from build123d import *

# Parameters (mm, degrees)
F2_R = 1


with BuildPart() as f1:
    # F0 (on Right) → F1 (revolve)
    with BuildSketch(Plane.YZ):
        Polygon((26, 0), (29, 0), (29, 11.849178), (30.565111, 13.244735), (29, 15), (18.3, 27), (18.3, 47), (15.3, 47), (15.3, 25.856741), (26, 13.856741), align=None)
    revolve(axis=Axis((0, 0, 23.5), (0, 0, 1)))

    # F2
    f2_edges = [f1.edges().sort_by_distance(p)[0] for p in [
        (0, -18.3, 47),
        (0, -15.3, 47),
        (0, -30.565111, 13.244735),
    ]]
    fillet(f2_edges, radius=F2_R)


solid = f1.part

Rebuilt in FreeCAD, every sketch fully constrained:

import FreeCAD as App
import Part
import Sketcher
from FreeCAD import Vector
Q = App.Units.Quantity


def edges_at(feature, points):
    """Names of the edges that pass closest to the given points."""
    edges = feature.Shape.Edges
    near = lambda p: min(range(len(edges)), key=lambda i: edges[i].distToShape(Part.Vertex(*p))[0])
    return sorted({f"Edge{near(p) + 1}" for p in points})

doc = App.newDocument("Part")
body = doc.addObject("PartDesign::Body", "Body")

# Sketch on YZ plane
sketch1 = body.newObject("Sketcher::SketchObject", "Sketch")
sketch1.AttachmentSupport = (doc.getObject("YZ_Plane"), [""])
sketch1.MapMode = "FlatFace"
sketch1.addGeometry([
    Part.LineSegment(Vector(26, 0, 0), Vector(29, 0, 0)),  # 0
    Part.LineSegment(Vector(29, 0, 0), Vector(29, 11.8, 0)),  # 1
    Part.LineSegment(Vector(29, 11.8, 0), Vector(30.6, 13.2, 0)),  # 2
    Part.LineSegment(Vector(30.6, 13.2, 0), Vector(29, 15, 0)),  # 3
    Part.LineSegment(Vector(29, 15, 0), Vector(18.3, 27, 0)),  # 4
    Part.LineSegment(Vector(18.3, 27, 0), Vector(18.3, 47, 0)),  # 5
    Part.LineSegment(Vector(18.3, 47, 0), Vector(15.3, 47, 0)),  # 6
    Part.LineSegment(Vector(15.3, 47, 0), Vector(15.3, 25.9, 0)),  # 7
    Part.LineSegment(Vector(15.3, 25.9, 0), Vector(26, 13.9, 0)),  # 8
    Part.LineSegment(Vector(26, 13.9, 0), Vector(26, 0, 0)),  # 9
], False)
sketch1.addConstraint([
    Sketcher.Constraint("Coincident", 0, 2, 1, 1),
    Sketcher.Constraint("Coincident", 1, 2, 2, 1),
    Sketcher.Constraint("Coincident", 2, 2, 3, 1),
    Sketcher.Constraint("Coincident", 3, 2, 4, 1),
    Sketcher.Constraint("Coincident", 4, 2, 5, 1),
    Sketcher.Constraint("Coincident", 5, 2, 6, 1),
    Sketcher.Constraint("Coincident", 6, 2, 7, 1),
    Sketcher.Constraint("Coincident", 7, 2, 8, 1),
    Sketcher.Constraint("Coincident", 8, 2, 9, 1),
    Sketcher.Constraint("Coincident", 9, 2, 0, 1),
    Sketcher.Constraint("Horizontal", 0),
    Sketcher.Constraint("Vertical", 1),
    Sketcher.Constraint("Vertical", 5),
    Sketcher.Constraint("Horizontal", 6),
    Sketcher.Constraint("Vertical", 7),
    Sketcher.Constraint("Vertical", 9),
    Sketcher.Constraint("PointOnObject", 0, 2, -1),
    Sketcher.Constraint("Perpendicular", 2, 3),
    Sketcher.Constraint("Parallel", 3, 4),
    Sketcher.Constraint("Parallel", 4, 8),
    Sketcher.Constraint("Vertical", 1, 2, 3, 2),
    Sketcher.Constraint("Equal", 0, 6),
    Sketcher.Constraint("DistanceX", 0, 1, 0, 2, Q("3 mm")),
    Sketcher.Constraint("DistanceY", 5, 1, 5, 2, Q("20 mm")),
    Sketcher.Constraint("DistanceX", -1, 1, 0, 2, Q("29 mm")),
    Sketcher.Constraint("DistanceY", -1, 1, 3, 2, Q("15 mm")),
    Sketcher.Constraint("DistanceY", -1, 1, 4, 2, Q("27 mm")),
    Sketcher.Constraint("DistanceX", -1, 1, 4, 2, Q("18.3 mm")),
    Sketcher.Constraint("DistanceY", 7, 2, 7, 1, Q("21.143259 mm")),
    Sketcher.Constraint("Distance", 2, Q("2.096939 mm")),
])
revolution = body.newObject("PartDesign::Revolution", "Revolution")
revolution.Profile = sketch1
revolution.ReferenceAxis = (sketch1, ["V_Axis"])
revolution.Angle = 360
doc.recompute()

fillet = body.newObject("PartDesign::Fillet", "Fillet")
fillet.Base = (revolution, edges_at(revolution, [(0, -18.3, 47), (0, -15.3, 47), (0, -30.565, 13.245)]))
fillet.Radius = 1

doc.recompute()
